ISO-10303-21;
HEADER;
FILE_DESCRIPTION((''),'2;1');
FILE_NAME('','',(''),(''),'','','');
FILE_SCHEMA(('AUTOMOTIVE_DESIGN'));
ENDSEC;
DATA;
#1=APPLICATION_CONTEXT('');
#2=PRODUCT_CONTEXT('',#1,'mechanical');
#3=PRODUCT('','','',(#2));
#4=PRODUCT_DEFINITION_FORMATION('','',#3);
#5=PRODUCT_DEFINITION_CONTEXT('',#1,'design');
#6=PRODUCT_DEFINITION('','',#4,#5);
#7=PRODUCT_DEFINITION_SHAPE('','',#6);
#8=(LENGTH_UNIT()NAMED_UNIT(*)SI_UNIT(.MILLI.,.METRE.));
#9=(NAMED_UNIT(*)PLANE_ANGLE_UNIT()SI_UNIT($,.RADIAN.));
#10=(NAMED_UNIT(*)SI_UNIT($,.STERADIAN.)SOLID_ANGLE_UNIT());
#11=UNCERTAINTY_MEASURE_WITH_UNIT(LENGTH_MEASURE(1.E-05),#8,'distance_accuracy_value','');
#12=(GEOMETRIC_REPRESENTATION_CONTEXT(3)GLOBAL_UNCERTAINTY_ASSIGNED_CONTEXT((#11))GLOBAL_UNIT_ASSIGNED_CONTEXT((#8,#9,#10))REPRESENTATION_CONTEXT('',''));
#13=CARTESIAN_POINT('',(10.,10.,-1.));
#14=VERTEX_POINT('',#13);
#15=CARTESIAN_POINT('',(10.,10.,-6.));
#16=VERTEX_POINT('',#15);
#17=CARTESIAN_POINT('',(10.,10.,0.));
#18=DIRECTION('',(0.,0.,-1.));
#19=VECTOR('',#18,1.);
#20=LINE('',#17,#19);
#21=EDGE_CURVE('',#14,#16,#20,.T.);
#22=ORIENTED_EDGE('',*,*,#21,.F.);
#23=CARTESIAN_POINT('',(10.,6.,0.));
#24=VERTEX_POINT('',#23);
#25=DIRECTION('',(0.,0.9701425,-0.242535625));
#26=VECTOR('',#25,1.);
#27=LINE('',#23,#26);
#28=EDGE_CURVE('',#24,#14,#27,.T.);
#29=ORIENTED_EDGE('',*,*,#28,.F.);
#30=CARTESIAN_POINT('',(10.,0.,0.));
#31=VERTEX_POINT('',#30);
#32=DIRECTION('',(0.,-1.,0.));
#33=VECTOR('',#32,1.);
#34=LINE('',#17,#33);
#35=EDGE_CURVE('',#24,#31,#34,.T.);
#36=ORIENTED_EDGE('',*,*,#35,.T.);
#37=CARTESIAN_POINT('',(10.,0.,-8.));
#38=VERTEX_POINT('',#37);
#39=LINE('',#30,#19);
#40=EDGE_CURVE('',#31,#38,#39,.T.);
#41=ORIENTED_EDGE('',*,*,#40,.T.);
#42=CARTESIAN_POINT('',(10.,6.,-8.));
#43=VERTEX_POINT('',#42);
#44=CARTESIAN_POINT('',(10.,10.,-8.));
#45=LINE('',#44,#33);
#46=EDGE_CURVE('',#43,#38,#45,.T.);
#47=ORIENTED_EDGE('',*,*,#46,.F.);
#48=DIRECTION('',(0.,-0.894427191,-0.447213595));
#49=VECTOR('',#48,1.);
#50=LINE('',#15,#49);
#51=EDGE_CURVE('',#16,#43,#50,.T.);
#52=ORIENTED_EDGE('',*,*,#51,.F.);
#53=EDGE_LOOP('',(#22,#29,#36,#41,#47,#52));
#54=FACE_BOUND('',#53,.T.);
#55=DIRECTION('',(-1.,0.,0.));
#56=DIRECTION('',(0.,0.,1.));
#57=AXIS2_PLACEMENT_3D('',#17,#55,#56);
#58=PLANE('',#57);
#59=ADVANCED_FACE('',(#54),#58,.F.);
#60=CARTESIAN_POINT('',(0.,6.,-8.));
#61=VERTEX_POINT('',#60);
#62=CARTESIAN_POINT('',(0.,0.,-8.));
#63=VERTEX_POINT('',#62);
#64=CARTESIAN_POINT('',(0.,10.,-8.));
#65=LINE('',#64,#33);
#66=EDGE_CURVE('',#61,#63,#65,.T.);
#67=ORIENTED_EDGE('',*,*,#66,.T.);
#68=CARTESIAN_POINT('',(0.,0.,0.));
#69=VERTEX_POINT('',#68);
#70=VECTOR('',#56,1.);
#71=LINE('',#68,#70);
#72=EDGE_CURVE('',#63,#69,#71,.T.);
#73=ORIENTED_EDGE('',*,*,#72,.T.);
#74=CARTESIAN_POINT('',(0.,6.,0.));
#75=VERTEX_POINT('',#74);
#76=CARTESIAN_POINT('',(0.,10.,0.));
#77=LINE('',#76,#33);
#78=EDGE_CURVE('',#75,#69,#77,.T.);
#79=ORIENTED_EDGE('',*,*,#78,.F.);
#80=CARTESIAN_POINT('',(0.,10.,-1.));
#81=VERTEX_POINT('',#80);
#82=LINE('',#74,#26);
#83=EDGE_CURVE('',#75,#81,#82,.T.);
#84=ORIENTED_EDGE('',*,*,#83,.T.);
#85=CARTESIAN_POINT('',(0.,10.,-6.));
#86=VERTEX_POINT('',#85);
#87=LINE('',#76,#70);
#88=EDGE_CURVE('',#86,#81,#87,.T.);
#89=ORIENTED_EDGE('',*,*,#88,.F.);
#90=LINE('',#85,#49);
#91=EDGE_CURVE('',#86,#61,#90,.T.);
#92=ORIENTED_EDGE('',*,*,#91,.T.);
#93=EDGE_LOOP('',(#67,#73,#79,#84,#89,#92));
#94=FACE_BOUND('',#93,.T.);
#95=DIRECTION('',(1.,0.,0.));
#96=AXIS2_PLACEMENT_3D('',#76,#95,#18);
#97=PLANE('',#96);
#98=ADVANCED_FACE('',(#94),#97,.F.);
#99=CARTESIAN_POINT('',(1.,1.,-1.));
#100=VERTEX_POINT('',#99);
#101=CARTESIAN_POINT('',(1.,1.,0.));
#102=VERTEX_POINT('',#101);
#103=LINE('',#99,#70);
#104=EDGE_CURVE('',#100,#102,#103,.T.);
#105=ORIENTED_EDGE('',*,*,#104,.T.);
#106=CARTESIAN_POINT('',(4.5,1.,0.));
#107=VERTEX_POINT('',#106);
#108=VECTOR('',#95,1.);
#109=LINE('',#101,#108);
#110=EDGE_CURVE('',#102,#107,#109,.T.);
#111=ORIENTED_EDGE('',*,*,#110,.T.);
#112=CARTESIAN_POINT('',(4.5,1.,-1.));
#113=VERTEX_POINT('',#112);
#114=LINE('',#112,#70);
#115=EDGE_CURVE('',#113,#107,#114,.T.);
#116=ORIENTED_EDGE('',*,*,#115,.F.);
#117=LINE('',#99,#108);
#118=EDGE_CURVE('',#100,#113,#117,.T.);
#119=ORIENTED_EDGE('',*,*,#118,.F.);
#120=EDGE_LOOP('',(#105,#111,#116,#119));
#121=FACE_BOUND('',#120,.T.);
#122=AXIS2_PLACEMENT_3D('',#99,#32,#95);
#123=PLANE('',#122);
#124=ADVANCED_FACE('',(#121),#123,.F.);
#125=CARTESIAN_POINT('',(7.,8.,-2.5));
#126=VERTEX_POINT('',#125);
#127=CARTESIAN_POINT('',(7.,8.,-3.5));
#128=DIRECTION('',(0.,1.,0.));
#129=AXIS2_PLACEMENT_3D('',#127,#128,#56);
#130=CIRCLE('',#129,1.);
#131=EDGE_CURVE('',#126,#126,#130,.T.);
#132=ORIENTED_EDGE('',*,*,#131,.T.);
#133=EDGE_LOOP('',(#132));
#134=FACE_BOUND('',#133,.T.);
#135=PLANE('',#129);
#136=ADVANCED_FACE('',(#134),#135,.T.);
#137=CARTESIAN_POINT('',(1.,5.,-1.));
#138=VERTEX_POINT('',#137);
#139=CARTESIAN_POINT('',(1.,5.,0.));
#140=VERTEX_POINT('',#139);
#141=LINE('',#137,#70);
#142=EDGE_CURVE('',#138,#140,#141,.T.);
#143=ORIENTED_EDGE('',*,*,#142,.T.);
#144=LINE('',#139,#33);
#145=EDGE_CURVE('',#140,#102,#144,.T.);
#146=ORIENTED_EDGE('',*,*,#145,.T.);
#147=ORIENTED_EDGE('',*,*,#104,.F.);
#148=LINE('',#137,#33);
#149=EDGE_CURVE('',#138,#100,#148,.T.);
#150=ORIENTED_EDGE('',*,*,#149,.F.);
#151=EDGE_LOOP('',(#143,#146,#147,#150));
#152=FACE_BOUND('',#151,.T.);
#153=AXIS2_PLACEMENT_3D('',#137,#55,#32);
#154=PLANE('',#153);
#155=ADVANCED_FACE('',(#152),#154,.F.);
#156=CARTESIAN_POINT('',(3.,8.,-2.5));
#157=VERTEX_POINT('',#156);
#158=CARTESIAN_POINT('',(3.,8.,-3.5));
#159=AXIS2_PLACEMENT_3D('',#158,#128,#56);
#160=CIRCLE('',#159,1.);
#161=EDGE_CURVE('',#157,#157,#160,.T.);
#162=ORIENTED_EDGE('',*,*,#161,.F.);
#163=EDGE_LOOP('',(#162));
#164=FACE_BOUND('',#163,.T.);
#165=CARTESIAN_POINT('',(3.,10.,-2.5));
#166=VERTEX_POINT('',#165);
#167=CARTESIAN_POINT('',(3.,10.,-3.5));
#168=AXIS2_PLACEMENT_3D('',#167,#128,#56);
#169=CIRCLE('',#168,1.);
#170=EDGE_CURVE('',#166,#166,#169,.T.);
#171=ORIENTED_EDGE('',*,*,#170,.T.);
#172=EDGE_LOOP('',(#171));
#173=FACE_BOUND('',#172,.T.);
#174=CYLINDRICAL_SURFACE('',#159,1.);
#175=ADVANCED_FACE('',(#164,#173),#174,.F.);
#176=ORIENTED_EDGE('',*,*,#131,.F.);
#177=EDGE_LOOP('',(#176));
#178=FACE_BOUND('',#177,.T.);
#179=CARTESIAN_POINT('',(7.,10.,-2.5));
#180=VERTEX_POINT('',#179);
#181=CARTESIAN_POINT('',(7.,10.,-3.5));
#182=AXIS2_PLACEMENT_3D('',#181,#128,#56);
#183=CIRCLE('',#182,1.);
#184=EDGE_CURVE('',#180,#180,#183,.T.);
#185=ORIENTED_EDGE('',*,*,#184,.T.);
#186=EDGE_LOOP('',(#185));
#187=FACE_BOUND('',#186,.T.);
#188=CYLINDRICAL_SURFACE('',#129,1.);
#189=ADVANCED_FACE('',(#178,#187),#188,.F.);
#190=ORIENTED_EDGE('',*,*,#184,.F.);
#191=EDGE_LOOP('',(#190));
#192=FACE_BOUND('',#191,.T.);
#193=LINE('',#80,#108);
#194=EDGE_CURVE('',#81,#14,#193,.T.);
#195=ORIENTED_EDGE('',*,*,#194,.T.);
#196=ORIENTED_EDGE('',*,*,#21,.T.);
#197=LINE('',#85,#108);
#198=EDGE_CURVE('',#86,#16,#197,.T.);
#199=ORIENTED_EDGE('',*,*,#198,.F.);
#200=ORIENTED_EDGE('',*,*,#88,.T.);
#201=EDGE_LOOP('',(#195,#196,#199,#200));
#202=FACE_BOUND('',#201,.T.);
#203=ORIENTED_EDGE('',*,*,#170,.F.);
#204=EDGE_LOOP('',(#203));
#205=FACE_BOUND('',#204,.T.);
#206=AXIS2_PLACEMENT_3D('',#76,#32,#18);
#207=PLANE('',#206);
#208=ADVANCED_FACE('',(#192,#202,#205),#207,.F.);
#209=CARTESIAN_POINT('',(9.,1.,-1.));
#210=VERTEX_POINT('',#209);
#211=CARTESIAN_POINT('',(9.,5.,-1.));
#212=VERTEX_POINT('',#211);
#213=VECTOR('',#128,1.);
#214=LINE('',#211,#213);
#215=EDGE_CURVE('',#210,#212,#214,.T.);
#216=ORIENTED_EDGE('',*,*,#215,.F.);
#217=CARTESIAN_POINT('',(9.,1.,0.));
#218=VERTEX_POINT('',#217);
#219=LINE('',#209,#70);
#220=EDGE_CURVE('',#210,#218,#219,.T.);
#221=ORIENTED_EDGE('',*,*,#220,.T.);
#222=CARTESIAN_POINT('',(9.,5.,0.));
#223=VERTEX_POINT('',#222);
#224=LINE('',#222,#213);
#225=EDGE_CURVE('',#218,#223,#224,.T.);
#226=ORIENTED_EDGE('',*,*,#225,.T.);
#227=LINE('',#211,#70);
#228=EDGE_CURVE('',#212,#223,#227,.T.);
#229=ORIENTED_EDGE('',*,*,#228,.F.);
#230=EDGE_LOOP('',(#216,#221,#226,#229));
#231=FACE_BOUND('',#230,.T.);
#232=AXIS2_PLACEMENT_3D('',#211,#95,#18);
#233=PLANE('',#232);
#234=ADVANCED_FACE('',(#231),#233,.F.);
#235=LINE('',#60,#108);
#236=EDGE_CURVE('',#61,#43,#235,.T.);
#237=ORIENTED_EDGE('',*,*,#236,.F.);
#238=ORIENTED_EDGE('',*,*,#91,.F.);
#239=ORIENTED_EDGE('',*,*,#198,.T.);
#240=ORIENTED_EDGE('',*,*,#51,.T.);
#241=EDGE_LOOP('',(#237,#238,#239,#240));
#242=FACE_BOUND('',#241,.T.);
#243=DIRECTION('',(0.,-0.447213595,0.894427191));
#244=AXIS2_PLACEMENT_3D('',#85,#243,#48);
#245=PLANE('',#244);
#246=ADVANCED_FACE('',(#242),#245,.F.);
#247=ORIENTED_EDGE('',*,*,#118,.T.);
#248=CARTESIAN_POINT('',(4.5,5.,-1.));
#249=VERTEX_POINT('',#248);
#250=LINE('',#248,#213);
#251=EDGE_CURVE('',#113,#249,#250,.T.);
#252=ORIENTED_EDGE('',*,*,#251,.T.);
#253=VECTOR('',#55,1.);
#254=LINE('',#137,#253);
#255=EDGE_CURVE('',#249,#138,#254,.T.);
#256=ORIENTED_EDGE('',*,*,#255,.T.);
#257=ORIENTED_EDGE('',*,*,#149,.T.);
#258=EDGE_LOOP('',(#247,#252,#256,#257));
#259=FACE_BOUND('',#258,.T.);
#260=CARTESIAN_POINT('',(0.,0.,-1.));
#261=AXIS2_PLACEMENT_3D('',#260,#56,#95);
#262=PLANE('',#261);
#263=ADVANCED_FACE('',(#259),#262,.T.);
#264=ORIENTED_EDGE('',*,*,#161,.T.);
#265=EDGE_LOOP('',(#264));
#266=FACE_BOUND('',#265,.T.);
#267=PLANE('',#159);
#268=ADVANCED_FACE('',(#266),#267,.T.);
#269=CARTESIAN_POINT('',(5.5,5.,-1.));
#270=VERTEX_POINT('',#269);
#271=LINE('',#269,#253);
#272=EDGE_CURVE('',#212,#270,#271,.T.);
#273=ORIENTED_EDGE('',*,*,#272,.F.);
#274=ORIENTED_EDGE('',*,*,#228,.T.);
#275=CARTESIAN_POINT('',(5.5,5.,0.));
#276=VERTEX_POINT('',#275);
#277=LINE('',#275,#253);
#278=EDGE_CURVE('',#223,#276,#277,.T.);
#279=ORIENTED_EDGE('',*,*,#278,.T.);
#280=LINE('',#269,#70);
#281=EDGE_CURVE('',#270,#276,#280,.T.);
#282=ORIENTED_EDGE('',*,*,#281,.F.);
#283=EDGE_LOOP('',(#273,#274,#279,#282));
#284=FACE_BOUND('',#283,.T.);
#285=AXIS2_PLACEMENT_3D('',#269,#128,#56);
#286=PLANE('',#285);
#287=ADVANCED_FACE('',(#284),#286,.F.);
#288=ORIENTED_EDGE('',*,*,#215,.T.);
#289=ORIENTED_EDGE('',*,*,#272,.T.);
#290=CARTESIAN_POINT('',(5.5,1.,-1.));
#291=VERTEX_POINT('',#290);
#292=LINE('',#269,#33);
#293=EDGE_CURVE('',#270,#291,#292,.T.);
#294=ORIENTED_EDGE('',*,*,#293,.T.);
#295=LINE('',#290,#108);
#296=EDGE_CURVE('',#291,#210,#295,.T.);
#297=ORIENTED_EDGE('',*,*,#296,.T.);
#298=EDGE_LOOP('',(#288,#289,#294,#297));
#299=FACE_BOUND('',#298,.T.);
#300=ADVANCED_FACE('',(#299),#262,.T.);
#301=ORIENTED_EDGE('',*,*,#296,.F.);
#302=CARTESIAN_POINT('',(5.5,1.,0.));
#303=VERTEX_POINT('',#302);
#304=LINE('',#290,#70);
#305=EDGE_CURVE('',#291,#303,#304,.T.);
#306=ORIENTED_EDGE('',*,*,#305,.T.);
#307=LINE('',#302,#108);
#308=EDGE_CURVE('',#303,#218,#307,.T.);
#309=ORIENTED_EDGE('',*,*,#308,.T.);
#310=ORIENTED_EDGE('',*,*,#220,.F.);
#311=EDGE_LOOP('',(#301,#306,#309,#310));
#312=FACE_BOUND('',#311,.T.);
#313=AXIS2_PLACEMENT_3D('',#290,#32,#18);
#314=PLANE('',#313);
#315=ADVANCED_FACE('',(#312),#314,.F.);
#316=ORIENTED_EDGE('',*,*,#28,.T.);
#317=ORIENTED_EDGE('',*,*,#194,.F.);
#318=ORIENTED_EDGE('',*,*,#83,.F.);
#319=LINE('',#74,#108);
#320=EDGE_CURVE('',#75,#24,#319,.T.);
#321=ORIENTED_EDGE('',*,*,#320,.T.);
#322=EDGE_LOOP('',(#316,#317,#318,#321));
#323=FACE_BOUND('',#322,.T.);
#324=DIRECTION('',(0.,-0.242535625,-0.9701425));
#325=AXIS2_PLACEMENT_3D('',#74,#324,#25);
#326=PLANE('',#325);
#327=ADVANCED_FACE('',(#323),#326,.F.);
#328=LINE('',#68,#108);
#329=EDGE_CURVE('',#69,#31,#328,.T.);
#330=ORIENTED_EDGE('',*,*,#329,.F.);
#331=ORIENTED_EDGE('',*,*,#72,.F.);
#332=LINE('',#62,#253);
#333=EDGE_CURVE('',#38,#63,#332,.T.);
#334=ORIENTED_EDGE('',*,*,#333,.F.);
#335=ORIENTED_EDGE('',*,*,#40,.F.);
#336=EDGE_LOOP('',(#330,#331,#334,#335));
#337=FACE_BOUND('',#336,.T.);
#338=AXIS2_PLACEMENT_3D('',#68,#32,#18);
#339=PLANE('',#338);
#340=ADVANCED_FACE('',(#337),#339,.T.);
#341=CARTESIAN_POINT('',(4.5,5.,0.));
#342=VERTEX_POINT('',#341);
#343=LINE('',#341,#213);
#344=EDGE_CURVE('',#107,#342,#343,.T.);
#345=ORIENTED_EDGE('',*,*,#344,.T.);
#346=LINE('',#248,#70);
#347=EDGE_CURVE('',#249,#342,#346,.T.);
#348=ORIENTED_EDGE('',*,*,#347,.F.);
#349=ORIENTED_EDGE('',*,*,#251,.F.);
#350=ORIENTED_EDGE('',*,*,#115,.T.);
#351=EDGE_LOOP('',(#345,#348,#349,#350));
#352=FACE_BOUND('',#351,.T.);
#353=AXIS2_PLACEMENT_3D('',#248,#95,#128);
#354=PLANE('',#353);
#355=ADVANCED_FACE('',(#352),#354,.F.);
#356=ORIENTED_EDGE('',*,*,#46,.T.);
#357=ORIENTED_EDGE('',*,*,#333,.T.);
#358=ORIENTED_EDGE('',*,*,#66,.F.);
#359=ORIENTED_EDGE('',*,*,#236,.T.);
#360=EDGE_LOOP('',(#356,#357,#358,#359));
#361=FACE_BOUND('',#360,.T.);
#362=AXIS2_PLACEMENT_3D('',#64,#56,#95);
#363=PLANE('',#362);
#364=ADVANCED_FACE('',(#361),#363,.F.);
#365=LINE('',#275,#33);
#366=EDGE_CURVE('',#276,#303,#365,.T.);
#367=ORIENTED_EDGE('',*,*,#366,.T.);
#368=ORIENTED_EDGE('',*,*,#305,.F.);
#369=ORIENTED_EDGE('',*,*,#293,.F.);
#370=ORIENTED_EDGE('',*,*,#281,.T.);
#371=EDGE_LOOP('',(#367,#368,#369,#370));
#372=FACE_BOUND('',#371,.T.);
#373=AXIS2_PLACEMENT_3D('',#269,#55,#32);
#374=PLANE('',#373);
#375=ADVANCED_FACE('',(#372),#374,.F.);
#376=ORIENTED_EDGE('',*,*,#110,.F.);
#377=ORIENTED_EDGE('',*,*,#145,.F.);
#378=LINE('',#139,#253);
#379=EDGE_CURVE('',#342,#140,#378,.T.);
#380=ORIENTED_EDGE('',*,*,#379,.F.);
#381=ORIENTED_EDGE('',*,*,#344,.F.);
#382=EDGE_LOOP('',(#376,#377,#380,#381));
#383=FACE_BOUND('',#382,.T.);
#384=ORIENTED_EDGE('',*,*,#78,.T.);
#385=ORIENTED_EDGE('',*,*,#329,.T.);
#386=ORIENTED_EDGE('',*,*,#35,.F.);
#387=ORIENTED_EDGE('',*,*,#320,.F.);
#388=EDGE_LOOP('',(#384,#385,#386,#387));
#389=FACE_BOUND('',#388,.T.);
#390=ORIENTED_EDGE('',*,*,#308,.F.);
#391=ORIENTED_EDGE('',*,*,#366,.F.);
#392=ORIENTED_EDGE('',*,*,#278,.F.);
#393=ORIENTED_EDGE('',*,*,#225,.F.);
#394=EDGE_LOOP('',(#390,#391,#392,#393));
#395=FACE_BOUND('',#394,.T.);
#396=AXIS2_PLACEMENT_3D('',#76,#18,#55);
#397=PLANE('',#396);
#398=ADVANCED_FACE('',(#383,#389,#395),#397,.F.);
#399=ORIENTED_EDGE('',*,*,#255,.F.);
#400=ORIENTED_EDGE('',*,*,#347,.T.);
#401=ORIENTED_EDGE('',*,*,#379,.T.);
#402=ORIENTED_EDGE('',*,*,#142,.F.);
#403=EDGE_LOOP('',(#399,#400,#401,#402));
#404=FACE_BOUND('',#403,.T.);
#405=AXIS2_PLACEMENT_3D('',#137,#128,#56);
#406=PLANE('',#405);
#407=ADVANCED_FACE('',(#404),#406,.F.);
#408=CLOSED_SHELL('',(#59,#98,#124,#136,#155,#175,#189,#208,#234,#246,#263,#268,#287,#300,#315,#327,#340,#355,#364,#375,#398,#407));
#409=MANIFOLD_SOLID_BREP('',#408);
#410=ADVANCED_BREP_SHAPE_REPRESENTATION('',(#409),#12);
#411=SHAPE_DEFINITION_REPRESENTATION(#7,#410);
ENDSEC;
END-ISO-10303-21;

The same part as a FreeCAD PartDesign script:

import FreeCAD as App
import Part
import Sketcher

V = App.Vector


def add_polygon(sketch, points):
    """Adds a closed chain of lines whose ends are joined by coincident constraints."""
    first, n = sketch.GeometryCount, len(points)
    for a, b in zip(points, points[1:] + points[:1]):
        sketch.addGeometry(Part.LineSegment(App.Vector(*a, 0), App.Vector(*b, 0)), False)
    for i in range(n):
        sketch.addConstraint(Sketcher.Constraint("Coincident", first + i, 2, first + (i + 1) % n, 1))

doc = App.newDocument("Part")
params = doc.addObject("Spreadsheet::Sheet", "Params")
for row, (alias, value) in enumerate([
    ("sketch1_width", "10 mm"),
    ("sketch1_height", "8 mm"),
    ("pad1_length", "10 mm"),
    ("sketch2_width", "5 mm"),
    ("sketch2_height", "1 mm"),
    ("sketch2_height2", "10 mm"),
    ("pocket1_length", "10 mm"),
    ("sketch3_diameter", "2 mm"),
    ("pocket2_length", "2 mm"),
    ("sketch4_height", "4 mm"),
    ("sketch4_width", "3.5 mm"),
    ("pocket3_length", "1 mm"),
], start=1):
    params.set(f"A{row}", alias)
    params.set(f"B{row}", "=" + value)
    params.setAlias(f"B{row}", alias)

body = doc.addObject("PartDesign::Body", "Body")

sketch1 = doc.addObject("Sketcher::SketchObject", "Sketch")
body.addObject(sketch1)
sketch1.AttachmentSupport = (doc.XZ_Plane, [""])
sketch1.MapMode = "FlatFace"
add_polygon(sketch1, [(0, -8), (0, 0), (10, 0), (10, -8)])
sketch1.addConstraint(Sketcher.Constraint("Vertical", 0))
sketch1.addConstraint(Sketcher.Constraint("Horizontal", 1))
sketch1.addConstraint(Sketcher.Constraint("Vertical", 2))
sketch1.addConstraint(Sketcher.Constraint("Horizontal", 3))
sketch1.addConstraint(Sketcher.Constraint("Coincident", 0, 2, -1, 1))
sketch1.addConstraint(Sketcher.Constraint("DistanceX", 1, 1, 1, 2, 10.0))
sketch1.addConstraint(Sketcher.Constraint("DistanceY", 0, 1, 0, 2, 8.0))
sketch1.setExpression("Constraints[9]", "Params.sketch1_width")
sketch1.setExpression("Constraints[10]", "Params.sketch1_height")
pad1 = doc.addObject("PartDesign::Pad", "Pad")
body.addObject(pad1)
pad1.Profile = sketch1
pad1.setExpression("Length", "Params.pad1_length")
pad1.Reversed = True

sketch2 = doc.addObject("Sketcher::SketchObject", "Sketch001")
body.addObject(sketch2)
sketch2.AttachmentSupport = (doc.YZ_Plane, [""])
sketch2.MapMode = "FlatFace"
sketch2.AttachmentOffset = App.Placement(V(0, 0, 10), App.Rotation())
add_polygon(sketch2, [(6, 0), (10, -1), (10, -6), (6, -8), (6, -9), (11, -9), (11, 1), (6, 1)])
sketch2.addConstraint(Sketcher.Constraint("Vertical", 1))
sketch2.addConstraint(Sketcher.Constraint("Vertical", 3))
sketch2.addConstraint(Sketcher.Constraint("Horizontal", 4))
sketch2.addConstraint(Sketcher.Constraint("Vertical", 5))
sketch2.addConstraint(Sketcher.Constraint("Horizontal", 6))
sketch2.addConstraint(Sketcher.Constraint("Vertical", 7))
sketch2.addConstraint(Sketcher.Constraint("PointOnObject", 7, 2, -1))
sketch2.addConstraint(Sketcher.Constraint("Vertical", 3, 2, 6, 2))
sketch2.addConstraint(Sketcher.Constraint("Equal", 6, 1))
sketch2.addConstraint(Sketcher.Constraint("Equal", 3, 7))
sketch2.addConstraint(Sketcher.Constraint("DistanceX", 4, 1, 4, 2, 5.0))
sketch2.addConstraint(Sketcher.Constraint("DistanceY", 3, 2, 3, 1, 1.0))
sketch2.addConstraint(Sketcher.Constraint("DistanceY", 5, 1, 5, 2, 10.0))
sketch2.addConstraint(Sketcher.Constraint("DistanceX", -1, 1, 0, 2, 10.0))
sketch2.addConstraint(Sketcher.Constraint("DistanceY", 0, 2, -1, 1, 1.0))
sketch2.addConstraint(Sketcher.Constraint("DistanceX", -1, 1, 2, 2, 6.0))
sketch2.setExpression("Constraints[18]", "Params.sketch2_width")
sketch2.setExpression("Constraints[19]", "Params.sketch2_height")
sketch2.setExpression("Constraints[20]", "Params.sketch2_height2")
pocket1 = doc.addObject("PartDesign::Pocket", "Pocket")
body.addObject(pocket1)
pocket1.Profile = sketch2
pocket1.setExpression("Length", "Params.pocket1_length")

sketch3 = doc.addObject("Sketcher::SketchObject", "Sketch002")
body.addObject(sketch3)
sketch3.AttachmentSupport = (doc.XZ_Plane, [""])
sketch3.MapMode = "FlatFace"
sketch3.AttachmentOffset = App.Placement(V(0, 0, -10), App.Rotation())
sketch3.addGeometry(Part.Circle(V(3, -3.5, 0), V(0, 0, 1), 1), False)
sketch3.addGeometry(Part.Circle(V(7, -3.5, 0), V(0, 0, 1), 1), False)
sketch3.addConstraint(Sketcher.Constraint("Equal", 0, 1))
sketch3.addConstraint(Sketcher.Constraint("Horizontal", 0, 3, 1, 3))
sketch3.addConstraint(Sketcher.Constraint("Diameter", 0, 2.0))
sketch3.addConstraint(Sketcher.Constraint("DistanceX", -1, 1, 0, 3, 3.0))
sketch3.addConstraint(Sketcher.Constraint("DistanceX", -1, 1, 1, 3, 7.0))
sketch3.addConstraint(Sketcher.Constraint("DistanceY", 0, 3, -1, 1, 3.5))
sketch3.setExpression("Constraints[2]", "Params.sketch3_diameter")
pocket2 = doc.addObject("PartDesign::Pocket", "Pocket001")
body.addObject(pocket2)
pocket2.Profile = sketch3
pocket2.setExpression("Length", "Params.pocket2_length")
pocket2.Reversed = True

sketch4 = doc.addObject("Sketcher::SketchObject", "Sketch003")
body.addObject(sketch4)
sketch4.AttachmentSupport = (doc.XY_Plane, [""])
sketch4.MapMode = "FlatFace"
add_polygon(sketch4, [(1, 5), (1, 1), (4.5, 1), (4.5, 5)])
add_polygon(sketch4, [(5.5, 5), (5.5, 1), (9, 1), (9, 5)])
sketch4.addConstraint(Sketcher.Constraint("Vertical", 0))
sketch4.addConstraint(Sketcher.Constraint("Horizontal", 1))
sketch4.addConstraint(Sketcher.Constraint("Vertical", 2))
sketch4.addConstraint(Sketcher.Constraint("Horizontal", 3))
sketch4.addConstraint(Sketcher.Constraint("Vertical", 4))
sketch4.addConstraint(Sketcher.Constraint("Horizontal", 5))
sketch4.addConstraint(Sketcher.Constraint("Vertical", 6))
sketch4.addConstraint(Sketcher.Constraint("Horizontal", 7))
sketch4.addConstraint(Sketcher.Constraint("Horizontal", 1, 2, 4, 2))
sketch4.addConstraint(Sketcher.Constraint("Horizontal", 3, 2, 6, 2))
sketch4.addConstraint(Sketcher.Constraint("Equal", 3, 5))
sketch4.addConstraint(Sketcher.Constraint("DistanceY", 0, 2, 0, 1, 4.0))
sketch4.addConstraint(Sketcher.Constraint("DistanceX", 1, 1, 1, 2, 3.5))
sketch4.addConstraint(Sketcher.Constraint("DistanceX", -1, 1, 0, 2, 1.0))
sketch4.addConstraint(Sketcher.Constraint("DistanceY", -1, 1, 0, 2, 1.0))
sketch4.addConstraint(Sketcher.Constraint("DistanceX", -1, 1, 5, 2, 9.0))
sketch4.setExpression("Constraints[19]", "Params.sketch4_height")
sketch4.setExpression("Constraints[20]", "Params.sketch4_width")
pocket3 = doc.addObject("PartDesign::Pocket", "Pocket002")
body.addObject(pocket3)
pocket3.Profile = sketch4
pocket3.setExpression("Length", "Params.pocket3_length")

doc.recompute()
